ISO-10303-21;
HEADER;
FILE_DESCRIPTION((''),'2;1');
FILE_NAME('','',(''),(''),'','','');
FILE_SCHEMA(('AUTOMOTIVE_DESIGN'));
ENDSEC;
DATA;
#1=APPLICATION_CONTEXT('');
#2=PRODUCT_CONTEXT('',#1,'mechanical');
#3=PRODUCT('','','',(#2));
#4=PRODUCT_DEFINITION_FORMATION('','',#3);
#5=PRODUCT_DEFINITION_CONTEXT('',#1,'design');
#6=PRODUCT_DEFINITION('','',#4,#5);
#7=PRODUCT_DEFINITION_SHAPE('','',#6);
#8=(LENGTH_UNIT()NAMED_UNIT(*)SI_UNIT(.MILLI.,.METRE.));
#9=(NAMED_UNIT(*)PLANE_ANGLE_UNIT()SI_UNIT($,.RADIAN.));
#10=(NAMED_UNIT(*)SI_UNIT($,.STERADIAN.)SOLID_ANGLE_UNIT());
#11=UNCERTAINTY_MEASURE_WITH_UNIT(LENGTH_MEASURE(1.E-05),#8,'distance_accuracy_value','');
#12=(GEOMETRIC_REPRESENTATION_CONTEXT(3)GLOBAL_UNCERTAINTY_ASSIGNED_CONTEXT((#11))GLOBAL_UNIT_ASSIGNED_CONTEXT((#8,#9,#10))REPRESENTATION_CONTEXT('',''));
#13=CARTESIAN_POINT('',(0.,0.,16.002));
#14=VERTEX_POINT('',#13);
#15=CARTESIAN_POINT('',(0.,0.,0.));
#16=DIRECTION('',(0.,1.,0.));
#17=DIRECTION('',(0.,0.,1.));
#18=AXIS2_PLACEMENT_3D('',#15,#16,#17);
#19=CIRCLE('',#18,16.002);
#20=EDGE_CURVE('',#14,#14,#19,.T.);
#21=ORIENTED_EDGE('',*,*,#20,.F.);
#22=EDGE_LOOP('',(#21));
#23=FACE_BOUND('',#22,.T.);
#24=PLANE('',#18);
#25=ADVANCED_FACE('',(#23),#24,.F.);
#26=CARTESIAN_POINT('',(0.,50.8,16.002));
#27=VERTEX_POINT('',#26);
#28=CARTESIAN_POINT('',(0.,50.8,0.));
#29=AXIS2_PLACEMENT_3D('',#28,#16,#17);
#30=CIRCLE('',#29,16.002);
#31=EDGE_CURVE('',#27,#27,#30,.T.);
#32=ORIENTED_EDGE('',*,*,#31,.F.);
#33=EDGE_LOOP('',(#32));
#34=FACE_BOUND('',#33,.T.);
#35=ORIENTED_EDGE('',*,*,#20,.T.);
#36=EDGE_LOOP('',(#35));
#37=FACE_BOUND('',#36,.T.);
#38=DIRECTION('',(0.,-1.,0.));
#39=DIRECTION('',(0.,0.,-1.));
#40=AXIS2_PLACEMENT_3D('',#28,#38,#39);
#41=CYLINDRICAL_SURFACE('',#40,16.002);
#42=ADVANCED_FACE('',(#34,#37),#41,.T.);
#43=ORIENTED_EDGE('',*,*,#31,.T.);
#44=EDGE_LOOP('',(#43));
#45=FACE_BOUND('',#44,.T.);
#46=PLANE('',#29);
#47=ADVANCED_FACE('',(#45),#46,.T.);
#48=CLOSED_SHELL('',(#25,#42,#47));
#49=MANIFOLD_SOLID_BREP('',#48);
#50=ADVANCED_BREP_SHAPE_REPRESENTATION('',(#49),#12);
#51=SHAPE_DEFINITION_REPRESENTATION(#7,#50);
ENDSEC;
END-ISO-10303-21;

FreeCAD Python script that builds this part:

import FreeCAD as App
import Part
import Sketcher
from FreeCAD import Vector
Q = App.Units.Quantity

doc = App.newDocument("Part")
params = doc.addObject("Spreadsheet::Sheet", "Params")
for row, (alias, value) in enumerate([
    ("sketch1_diameter", "1.26 in"),
    ("pad1_length", "2 in"),
], start=1):
    params.set(f"A{row}", alias)
    params.set(f"B{row}", "=" + value)
    params.setAlias(f"B{row}", alias)

body = doc.addObject("PartDesign::Body", "Body")

sketch1 = doc.addObject("Sketcher::SketchObject", "Sketch")
body.addObject(sketch1)
sketch1.AttachmentSupport = (doc.XZ_Plane, [""])
sketch1.MapMode = "FlatFace"
sketch1.addGeometry(Part.Circle(Vector(0, 0, 0), Vector(0, 0, 1), 16), False)
sketch1.addConstraint([
    Sketcher.Constraint("Coincident", 0, 3, -1, 1),
    Sketcher.Constraint("Diameter", 0, Q("1.26 in")),
])
sketch1.setExpression("Constraints[1]", "Params.sketch1_diameter")
pad1 = doc.addObject("PartDesign::Pad", "Pad")
body.addObject(pad1)
pad1.Profile = sketch1
pad1.setExpression("Length", "Params.pad1_length")
pad1.Reversed = True

doc.recompute()
